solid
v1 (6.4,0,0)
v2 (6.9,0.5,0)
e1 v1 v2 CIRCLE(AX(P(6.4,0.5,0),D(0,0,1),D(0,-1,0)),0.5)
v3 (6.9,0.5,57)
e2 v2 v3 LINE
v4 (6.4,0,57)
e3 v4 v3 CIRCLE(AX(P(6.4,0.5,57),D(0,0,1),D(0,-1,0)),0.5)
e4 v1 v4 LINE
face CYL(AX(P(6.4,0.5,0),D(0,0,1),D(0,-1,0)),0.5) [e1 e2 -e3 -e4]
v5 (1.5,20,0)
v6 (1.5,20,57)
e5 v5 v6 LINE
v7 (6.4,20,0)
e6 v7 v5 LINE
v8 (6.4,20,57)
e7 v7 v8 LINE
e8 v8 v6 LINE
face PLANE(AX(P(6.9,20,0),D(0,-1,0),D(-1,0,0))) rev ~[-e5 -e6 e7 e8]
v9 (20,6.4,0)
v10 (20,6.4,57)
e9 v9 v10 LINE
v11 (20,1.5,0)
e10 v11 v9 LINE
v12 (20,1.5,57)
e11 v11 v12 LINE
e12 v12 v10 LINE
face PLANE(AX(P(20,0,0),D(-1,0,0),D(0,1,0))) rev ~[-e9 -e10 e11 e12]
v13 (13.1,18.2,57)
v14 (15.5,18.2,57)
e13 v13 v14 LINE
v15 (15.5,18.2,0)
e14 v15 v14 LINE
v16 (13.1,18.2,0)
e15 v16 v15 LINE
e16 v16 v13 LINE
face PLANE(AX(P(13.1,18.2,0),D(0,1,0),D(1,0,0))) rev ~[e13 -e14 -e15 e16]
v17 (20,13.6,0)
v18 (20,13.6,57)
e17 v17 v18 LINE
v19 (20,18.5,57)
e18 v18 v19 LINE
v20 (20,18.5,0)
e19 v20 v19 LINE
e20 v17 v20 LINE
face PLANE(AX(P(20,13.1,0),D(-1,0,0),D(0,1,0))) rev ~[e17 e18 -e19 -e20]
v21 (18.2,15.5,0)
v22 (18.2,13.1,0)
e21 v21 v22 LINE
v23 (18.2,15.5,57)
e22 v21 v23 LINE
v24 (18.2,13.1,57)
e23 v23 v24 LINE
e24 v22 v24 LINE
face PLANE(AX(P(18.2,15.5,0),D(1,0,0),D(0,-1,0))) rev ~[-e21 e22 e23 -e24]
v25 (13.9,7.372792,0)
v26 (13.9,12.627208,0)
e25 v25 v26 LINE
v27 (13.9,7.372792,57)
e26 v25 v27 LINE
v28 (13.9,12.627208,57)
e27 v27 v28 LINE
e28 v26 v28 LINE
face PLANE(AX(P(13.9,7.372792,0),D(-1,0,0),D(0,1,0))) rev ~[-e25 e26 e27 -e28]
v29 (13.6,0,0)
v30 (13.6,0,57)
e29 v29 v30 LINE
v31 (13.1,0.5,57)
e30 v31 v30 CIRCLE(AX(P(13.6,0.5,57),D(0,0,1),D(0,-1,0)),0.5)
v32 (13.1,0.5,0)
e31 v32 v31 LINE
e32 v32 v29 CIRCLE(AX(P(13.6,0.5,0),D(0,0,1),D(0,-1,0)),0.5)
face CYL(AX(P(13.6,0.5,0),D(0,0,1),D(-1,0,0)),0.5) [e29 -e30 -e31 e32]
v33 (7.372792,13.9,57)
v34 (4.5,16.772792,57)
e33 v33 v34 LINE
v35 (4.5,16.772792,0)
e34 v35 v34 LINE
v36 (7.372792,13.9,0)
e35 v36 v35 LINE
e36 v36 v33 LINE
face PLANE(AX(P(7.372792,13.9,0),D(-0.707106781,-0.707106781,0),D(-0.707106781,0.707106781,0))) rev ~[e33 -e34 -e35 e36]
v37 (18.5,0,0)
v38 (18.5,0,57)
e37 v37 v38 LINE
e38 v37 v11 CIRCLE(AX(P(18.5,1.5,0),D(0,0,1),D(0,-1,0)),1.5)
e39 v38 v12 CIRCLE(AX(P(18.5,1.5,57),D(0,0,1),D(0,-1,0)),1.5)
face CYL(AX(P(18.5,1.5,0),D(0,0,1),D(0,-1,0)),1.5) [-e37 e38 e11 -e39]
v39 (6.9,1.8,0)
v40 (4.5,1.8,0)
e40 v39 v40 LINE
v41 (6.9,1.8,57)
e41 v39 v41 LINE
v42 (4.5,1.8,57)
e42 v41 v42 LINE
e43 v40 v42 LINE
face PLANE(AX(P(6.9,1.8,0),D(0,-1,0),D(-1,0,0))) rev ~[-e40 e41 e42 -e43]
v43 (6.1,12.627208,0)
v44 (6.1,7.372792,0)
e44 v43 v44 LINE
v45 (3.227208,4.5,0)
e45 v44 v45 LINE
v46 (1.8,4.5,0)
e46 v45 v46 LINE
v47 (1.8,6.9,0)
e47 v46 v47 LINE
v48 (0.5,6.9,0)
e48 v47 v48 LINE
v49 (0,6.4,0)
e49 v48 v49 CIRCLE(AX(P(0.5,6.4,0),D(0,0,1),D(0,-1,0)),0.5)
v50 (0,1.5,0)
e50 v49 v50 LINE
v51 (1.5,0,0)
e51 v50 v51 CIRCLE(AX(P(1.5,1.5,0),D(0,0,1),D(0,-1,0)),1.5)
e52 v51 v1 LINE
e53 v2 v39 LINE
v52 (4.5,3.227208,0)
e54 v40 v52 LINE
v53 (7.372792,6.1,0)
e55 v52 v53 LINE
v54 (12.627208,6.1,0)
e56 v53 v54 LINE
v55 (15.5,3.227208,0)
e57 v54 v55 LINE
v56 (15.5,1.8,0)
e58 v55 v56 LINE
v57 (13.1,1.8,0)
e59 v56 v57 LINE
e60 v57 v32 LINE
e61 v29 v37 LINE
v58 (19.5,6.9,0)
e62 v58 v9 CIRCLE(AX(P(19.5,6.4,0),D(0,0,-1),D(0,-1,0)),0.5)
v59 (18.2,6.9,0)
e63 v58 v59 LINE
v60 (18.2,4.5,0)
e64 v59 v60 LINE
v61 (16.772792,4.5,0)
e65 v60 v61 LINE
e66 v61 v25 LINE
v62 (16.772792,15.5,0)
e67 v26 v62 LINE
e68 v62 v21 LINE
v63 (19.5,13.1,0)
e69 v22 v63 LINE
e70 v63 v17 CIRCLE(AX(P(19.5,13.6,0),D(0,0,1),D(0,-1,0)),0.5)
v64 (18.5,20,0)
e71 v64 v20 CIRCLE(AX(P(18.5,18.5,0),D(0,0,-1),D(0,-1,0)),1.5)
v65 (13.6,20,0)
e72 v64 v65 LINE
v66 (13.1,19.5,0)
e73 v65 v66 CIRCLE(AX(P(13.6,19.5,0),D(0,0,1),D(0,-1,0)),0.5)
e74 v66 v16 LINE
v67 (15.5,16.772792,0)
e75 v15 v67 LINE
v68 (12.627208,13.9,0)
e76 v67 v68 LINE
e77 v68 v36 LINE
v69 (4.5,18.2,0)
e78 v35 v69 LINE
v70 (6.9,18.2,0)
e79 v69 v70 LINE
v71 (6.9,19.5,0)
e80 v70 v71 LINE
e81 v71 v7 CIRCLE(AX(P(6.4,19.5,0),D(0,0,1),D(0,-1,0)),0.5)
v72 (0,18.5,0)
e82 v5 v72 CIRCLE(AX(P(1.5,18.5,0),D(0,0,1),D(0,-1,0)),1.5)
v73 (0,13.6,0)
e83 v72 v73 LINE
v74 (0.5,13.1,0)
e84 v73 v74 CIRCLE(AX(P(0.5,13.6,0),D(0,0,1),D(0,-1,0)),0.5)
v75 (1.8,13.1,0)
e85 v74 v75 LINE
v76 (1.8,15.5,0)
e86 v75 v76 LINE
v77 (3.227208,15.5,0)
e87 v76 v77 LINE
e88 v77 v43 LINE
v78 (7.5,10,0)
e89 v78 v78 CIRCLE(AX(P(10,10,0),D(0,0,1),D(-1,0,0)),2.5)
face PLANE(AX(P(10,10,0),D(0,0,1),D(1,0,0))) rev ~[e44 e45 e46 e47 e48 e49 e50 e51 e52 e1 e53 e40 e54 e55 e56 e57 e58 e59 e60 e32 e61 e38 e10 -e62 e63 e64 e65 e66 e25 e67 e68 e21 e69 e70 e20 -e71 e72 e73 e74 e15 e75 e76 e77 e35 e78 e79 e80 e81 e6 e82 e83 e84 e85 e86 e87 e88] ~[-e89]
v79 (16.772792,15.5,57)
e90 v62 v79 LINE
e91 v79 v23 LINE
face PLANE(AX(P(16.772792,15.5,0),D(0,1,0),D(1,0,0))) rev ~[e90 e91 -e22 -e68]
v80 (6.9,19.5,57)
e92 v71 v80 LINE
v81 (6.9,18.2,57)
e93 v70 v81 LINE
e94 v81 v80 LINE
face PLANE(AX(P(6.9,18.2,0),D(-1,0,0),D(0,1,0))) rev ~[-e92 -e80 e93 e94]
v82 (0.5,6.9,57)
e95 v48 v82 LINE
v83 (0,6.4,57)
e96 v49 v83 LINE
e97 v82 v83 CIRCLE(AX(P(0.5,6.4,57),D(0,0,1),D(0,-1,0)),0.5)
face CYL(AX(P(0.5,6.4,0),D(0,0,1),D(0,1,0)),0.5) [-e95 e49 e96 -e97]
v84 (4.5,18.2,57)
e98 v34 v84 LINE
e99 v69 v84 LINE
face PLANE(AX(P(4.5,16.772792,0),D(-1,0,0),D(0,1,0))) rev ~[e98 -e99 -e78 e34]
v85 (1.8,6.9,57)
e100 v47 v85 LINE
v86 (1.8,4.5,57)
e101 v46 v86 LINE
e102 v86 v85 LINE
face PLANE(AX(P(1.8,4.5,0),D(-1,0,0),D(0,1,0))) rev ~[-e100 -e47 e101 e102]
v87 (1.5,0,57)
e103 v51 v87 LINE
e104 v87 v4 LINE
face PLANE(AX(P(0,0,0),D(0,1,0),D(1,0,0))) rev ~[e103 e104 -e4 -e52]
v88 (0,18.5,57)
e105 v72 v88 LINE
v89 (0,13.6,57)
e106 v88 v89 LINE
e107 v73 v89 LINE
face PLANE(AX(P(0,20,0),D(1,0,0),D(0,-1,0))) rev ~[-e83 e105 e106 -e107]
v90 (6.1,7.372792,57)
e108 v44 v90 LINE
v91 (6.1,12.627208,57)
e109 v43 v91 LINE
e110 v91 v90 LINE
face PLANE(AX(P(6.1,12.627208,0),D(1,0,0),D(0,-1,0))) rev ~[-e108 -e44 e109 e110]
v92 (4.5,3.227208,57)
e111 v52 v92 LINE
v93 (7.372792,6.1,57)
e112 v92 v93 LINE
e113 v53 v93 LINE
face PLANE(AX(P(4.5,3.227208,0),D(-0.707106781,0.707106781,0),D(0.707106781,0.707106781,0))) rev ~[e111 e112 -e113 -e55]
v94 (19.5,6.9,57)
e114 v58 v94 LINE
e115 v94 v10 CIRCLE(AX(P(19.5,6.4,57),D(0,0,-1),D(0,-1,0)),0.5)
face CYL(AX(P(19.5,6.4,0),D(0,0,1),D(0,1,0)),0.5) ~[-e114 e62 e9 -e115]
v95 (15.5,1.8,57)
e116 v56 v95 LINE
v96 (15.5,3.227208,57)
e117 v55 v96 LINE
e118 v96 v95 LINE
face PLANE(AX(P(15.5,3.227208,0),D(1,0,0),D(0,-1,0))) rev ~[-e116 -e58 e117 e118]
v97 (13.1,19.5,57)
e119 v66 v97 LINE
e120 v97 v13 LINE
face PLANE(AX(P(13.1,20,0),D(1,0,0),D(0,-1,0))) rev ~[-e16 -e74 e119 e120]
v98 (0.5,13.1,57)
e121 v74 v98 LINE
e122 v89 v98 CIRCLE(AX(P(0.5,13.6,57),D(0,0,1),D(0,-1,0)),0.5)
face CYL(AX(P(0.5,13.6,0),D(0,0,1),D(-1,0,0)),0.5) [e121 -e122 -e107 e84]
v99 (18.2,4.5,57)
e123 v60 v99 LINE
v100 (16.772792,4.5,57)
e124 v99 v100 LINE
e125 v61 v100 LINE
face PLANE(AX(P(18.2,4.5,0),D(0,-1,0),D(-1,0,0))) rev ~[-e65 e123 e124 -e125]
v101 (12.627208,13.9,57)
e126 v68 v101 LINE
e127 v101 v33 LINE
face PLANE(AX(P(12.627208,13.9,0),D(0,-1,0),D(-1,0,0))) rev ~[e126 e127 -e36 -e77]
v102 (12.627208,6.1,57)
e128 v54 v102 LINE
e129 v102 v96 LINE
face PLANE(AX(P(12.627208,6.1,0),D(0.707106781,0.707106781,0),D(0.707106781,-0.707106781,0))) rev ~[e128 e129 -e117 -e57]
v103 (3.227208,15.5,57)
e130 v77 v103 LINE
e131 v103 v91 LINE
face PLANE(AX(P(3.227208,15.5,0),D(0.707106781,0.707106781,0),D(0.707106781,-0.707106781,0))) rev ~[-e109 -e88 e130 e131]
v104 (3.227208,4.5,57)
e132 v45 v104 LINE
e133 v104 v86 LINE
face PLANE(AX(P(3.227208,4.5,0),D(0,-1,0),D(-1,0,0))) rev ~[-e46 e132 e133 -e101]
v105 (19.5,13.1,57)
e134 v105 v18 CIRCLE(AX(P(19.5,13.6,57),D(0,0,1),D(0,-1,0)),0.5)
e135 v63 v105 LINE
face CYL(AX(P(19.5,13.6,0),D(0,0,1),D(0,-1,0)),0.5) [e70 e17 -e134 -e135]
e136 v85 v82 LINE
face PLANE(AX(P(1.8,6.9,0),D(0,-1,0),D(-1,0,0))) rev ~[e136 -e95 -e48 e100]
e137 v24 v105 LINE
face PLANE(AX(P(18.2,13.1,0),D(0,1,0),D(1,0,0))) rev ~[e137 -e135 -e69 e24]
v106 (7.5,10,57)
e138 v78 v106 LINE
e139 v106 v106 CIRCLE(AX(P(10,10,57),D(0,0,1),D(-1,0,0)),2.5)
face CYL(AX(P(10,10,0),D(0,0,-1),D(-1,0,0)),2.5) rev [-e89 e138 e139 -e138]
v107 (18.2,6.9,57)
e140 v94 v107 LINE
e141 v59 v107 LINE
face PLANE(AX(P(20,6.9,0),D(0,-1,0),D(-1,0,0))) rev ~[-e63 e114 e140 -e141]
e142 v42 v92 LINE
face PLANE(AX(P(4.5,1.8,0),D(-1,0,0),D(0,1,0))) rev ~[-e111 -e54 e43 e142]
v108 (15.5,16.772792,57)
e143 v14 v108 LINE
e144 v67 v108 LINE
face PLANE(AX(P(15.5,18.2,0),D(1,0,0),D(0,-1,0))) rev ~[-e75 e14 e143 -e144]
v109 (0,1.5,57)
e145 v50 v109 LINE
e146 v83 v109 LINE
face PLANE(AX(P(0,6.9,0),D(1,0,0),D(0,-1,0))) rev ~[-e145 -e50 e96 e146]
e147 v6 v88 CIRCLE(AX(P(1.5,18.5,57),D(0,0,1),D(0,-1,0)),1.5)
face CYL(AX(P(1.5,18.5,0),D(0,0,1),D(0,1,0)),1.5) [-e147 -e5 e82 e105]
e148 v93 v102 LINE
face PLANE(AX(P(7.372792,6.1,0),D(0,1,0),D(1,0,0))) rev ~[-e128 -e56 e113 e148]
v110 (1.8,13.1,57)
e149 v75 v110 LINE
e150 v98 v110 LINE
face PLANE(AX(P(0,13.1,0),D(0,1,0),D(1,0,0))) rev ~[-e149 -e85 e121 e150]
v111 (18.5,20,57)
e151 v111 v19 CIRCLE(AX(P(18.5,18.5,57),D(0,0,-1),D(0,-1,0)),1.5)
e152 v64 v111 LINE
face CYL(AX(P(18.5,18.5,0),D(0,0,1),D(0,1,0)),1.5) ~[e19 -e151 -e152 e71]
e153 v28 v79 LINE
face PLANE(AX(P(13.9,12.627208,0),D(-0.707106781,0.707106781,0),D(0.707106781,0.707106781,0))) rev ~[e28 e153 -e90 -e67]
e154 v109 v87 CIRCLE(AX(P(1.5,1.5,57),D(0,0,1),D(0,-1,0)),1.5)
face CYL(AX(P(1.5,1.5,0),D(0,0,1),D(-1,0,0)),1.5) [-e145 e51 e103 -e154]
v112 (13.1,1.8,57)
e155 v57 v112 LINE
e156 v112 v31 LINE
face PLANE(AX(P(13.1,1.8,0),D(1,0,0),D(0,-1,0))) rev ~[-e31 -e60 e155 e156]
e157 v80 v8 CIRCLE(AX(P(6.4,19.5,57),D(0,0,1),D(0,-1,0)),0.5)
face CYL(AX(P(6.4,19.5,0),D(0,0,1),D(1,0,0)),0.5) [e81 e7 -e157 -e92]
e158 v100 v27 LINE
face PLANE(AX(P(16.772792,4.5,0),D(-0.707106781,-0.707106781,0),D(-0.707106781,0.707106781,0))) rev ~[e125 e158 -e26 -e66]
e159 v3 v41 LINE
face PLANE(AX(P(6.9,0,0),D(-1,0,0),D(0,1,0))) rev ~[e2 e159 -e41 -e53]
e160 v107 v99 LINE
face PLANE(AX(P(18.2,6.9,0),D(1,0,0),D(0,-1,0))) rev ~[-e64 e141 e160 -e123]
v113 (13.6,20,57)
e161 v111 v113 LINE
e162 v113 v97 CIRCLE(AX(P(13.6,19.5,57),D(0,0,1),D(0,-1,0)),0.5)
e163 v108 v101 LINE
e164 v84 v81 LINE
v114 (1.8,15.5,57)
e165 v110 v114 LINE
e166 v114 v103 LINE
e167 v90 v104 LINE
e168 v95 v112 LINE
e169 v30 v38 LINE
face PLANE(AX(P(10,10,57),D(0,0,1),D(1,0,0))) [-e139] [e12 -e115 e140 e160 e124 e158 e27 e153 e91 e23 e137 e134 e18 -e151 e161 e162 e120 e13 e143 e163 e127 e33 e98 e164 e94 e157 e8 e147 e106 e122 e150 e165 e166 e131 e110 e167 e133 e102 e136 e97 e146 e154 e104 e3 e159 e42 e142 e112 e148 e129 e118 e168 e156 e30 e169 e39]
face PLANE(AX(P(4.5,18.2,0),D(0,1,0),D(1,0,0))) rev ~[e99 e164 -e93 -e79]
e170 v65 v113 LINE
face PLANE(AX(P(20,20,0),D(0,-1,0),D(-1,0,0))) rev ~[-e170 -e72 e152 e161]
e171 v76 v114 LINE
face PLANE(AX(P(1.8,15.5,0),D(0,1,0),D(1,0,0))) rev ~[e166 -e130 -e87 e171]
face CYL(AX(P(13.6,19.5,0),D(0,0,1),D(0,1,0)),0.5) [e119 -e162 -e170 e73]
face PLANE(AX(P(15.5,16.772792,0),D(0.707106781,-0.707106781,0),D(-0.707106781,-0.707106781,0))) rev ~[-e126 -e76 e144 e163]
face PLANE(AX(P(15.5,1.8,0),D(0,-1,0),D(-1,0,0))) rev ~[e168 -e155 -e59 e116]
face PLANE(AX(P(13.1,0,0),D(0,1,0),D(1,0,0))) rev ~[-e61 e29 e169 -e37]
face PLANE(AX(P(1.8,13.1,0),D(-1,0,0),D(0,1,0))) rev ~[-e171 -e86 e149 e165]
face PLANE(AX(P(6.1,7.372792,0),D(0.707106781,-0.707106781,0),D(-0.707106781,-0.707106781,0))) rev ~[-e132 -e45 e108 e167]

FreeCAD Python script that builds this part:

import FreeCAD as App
import Part
import Sketcher
from FreeCAD import Vector
Q = App.Units.Quantity


def edges_at(feature, points):
    """Names of the edges that pass closest to the given points."""
    edges = feature.Shape.Edges
    near = lambda p: min(range(len(edges)), key=lambda i: edges[i].distToShape(Part.Vertex(*p))[0])
    return sorted({f"Edge{near(p) + 1}" for p in points})


def add_polygon(sketch, points):
    """Adds a closed chain of lines whose ends are joined by coincident constraints."""
    first, n = sketch.GeometryCount, len(points)
    for a, b in zip(points, points[1:] + points[:1]):
        sketch.addGeometry(Part.LineSegment(App.Vector(*a, 0), App.Vector(*b, 0)), False)
    for i in range(n):
        sketch.addConstraint(Sketcher.Constraint("Coincident", first + i, 2, first + (i + 1) % n, 1))

doc = App.newDocument("Part")
body = doc.addObject("PartDesign::Body", "Body")

# Sketch on XY plane
sketch1 = body.newObject("Sketcher::SketchObject", "Sketch")
sketch1.AttachmentSupport = (doc.getObject("XY_Plane"), [""])
sketch1.MapMode = "FlatFace"
add_polygon(sketch1, [(0, 6.9), (0, 0), (6.9, 0), (6.9, 1.8), (4.5, 1.8), (4.5, 3.227208), (7.372792, 6.1), (12.627208, 6.1), (15.5, 3.227208), (15.5, 1.8), (13.1, 1.8), (13.1, 0), (20, 0), (20, 6.9), (18.2, 6.9), (18.2, 4.5), (16.772792, 4.5), (13.9, 7.372792), (13.9, 12.627208), (16.772792, 15.5), (18.2, 15.5), (18.2, 13.1), (20, 13.1), (20, 20), (13.1, 20), (13.1, 18.2), (15.5, 18.2), (15.5, 16.772792), (12.627208, 13.9), (7.372792, 13.9), (4.5, 16.772792), (4.5, 18.2), (6.9, 18.2), (6.9, 20), (0, 20), (0, 13.1), (1.8, 13.1), (1.8, 15.5), (3.227208, 15.5), (6.1, 12.627208), (6.1, 7.372792), (3.227208, 4.5), (1.8, 4.5), (1.8, 6.9)])  # lines 0-43
sketch1.addGeometry(Part.Circle(Vector(10, 10, 0), Vector(0, 0, 1), 2.5), False)  # 44
sketch1.addConstraint([
    Sketcher.Constraint("Vertical", 0),
    Sketcher.Constraint("Horizontal", 1),
    Sketcher.Constraint("Vertical", 2),
    Sketcher.Constraint("Horizontal", 3),
    Sketcher.Constraint("Vertical", 4),
    Sketcher.Constraint("Horizontal", 6),
    Sketcher.Constraint("Vertical", 8),
    Sketcher.Constraint("Horizontal", 9),
    Sketcher.Constraint("Vertical", 10),
    Sketcher.Constraint("Horizontal", 11),
    Sketcher.Constraint("Vertical", 12),
    Sketcher.Constraint("Horizontal", 13),
    Sketcher.Constraint("Vertical", 14),
    Sketcher.Constraint("Horizontal", 15),
    Sketcher.Constraint("Vertical", 17),
    Sketcher.Constraint("Horizontal", 19),
    Sketcher.Constraint("Vertical", 20),
    Sketcher.Constraint("Horizontal", 21),
    Sketcher.Constraint("Vertical", 22),
    Sketcher.Constraint("Horizontal", 23),
    Sketcher.Constraint("Vertical", 24),
    Sketcher.Constraint("Horizontal", 25),
    Sketcher.Constraint("Vertical", 26),
    Sketcher.Constraint("Horizontal", 28),
    Sketcher.Constraint("Vertical", 30),
    Sketcher.Constraint("Horizontal", 31),
    Sketcher.Constraint("Vertical", 32),
    Sketcher.Constraint("Horizontal", 33),
    Sketcher.Constraint("Vertical", 34),
    Sketcher.Constraint("Horizontal", 35),
    Sketcher.Constraint("Vertical", 36),
    Sketcher.Constraint("Horizontal", 37),
    Sketcher.Constraint("Vertical", 39),
    Sketcher.Constraint("Horizontal", 41),
    Sketcher.Constraint("Vertical", 42),
    Sketcher.Constraint("Horizontal", 43),
    Sketcher.Constraint("Coincident", 0, 2, -1, 1),
    Sketcher.Constraint("PointOnObject", 10, 2, -1),
    Sketcher.Constraint("PointOnObject", 33, 2, -2),
    Sketcher.Constraint("Perpendicular", 5, 7),
    Sketcher.Constraint("Parallel", 7, 16),
    Sketcher.Constraint("Perpendicular", 16, 18),
    Sketcher.Constraint("Parallel", 18, 27),
    Sketcher.Constraint("Perpendicular", 27, 29),
    Sketcher.Constraint("Parallel", 29, 38),
    Sketcher.Constraint("Perpendicular", 38, 40),
    Sketcher.Constraint("Horizontal", 4, 2, 7, 2),
    Sketcher.Constraint("Horizontal", 3, 2, 8, 2),
    Sketcher.Constraint("Horizontal", 26, 2, 29, 2),
    Sketcher.Constraint("Horizontal", 25, 2, 30, 2),
    Sketcher.Constraint("Horizontal", 23, 2, 32, 2),
    Sketcher.Constraint("Horizontal", 21, 2, 34, 2),
    Sketcher.Constraint("Horizontal", 19, 2, 36, 2),
    Sketcher.Constraint("Horizontal", 17, 2, 38, 2),
    Sketcher.Constraint("Horizontal", 16, 2, 39, 2),
    Sketcher.Constraint("Horizontal", 15, 2, 40, 2),
    Sketcher.Constraint("Horizontal", 13, 2, 42, 2),
    Sketcher.Constraint("Vertical", 15, 2, 18, 2),
    Sketcher.Constraint("Vertical", 14, 2, 19, 2),
    Sketcher.Constraint("Vertical", 12, 2, 21, 2),
    Sketcher.Constraint("Vertical", 10, 2, 23, 2),
    Sketcher.Constraint("Vertical", 8, 2, 25, 2),
    Sketcher.Constraint("Vertical", 6, 2, 27, 2),
    Sketcher.Constraint("Vertical", 5, 2, 28, 2),
    Sketcher.Constraint("Vertical", 4, 2, 29, 2),
    Sketcher.Constraint("Vertical", 2, 2, 31, 2),
    Sketcher.Constraint("Vertical", 36, 2, 41, 2),
    Sketcher.Constraint("Equal", 3, 9),
    Sketcher.Constraint("Equal", 1, 11),
    Sketcher.Constraint("Equal", 21, 35),
    Sketcher.Constraint("Equal", 19, 37),
    Sketcher.Constraint("Equal", 33, 0),
    Sketcher.Constraint("Equal", 43, 2),
    Sketcher.Constraint("Equal", 41, 4),
    Sketcher.Constraint("Equal", 31, 14),
    Sketcher.Constraint("Equal", 28, 17),
    Sketcher.Constraint("Equal", 14, 20),
    Sketcher.Constraint("Equal", 12, 22),
    Sketcher.Constraint("Equal", 10, 24),
    Sketcher.Constraint("Equal", 8, 26),
    Sketcher.Constraint("Equal", 7, 16),
    Sketcher.Constraint("Diameter", 44, Q("5 mm")),
    Sketcher.Constraint("DistanceX", 1, 1, 1, 2, Q("6.9 mm")),
    Sketcher.Constraint("DistanceX", 3, 2, 3, 1, Q("2.4 mm")),
    Sketcher.Constraint("DistanceX", 13, 2, 13, 1, Q("1.8 mm")),
    Sketcher.Constraint("DistanceX", -1, 1, 44, 3, Q("10 mm")),
    Sketcher.Constraint("DistanceY", -1, 1, 44, 3, Q("10 mm")),
    Sketcher.Constraint("DistanceX", -1, 1, 11, 2, Q("20 mm")),
    Sketcher.Constraint("DistanceY", -1, 1, 5, 2, Q("6.1 mm")),
    Sketcher.Constraint("Distance", 5, Q("4.062742 mm")),
])
pad1 = body.newObject("PartDesign::Pad", "Pad")
pad1.Profile = sketch1
pad1.Length = 57
doc.recompute()

fillet = body.newObject("PartDesign::Fillet", "Fillet")
fillet.Base = (pad1, edges_at(pad1, [(20, 20, 28.5)]))
fillet.Radius = 1.5
doc.recompute()

fillet2 = body.newObject("PartDesign::Fillet", "Fillet001")
fillet2.Base = (fillet, edges_at(fillet, [(0, 20, 28.5)]))
fillet2.Radius = 1.5
doc.recompute()

fillet3 = body.newObject("PartDesign::Fillet", "Fillet002")
fillet3.Base = (fillet2, edges_at(fillet2, [(0, 0, 28.5)]))
fillet3.Radius = 1.5
doc.recompute()

fillet4 = body.newObject("PartDesign::Fillet", "Fillet003")
fillet4.Base = (fillet3, edges_at(fillet3, [(20, 0, 28.5)]))
fillet4.Radius = 1.5
doc.recompute()

fillet5 = body.newObject("PartDesign::Fillet", "Fillet004")
fillet5.Base = (fillet4, edges_at(fillet4, [(13.1, 20, 28.5)]))
fillet5.Radius = 0.5
doc.recompute()

fillet6 = body.newObject("PartDesign::Fillet", "Fillet005")
fillet6.Base = (fillet5, edges_at(fillet5, [(6.9, 20, 28.5)]))
fillet6.Radius = 0.5
doc.recompute()

fillet7 = body.newObject("PartDesign::Fillet", "Fillet006")
fillet7.Base = (fillet6, edges_at(fillet6, [(0, 13.1, 28.5)]))
fillet7.Radius = 0.5
doc.recompute()

fillet8 = body.newObject("PartDesign::Fillet", "Fillet007")
fillet8.Base = (fillet7, edges_at(fillet7, [(0, 6.9, 28.5)]))
fillet8.Radius = 0.5
doc.recompute()

fillet9 = body.newObject("PartDesign::Fillet", "Fillet008")
fillet9.Base = (fillet8, edges_at(fillet8, [(6.9, 0, 28.5)]))
fillet9.Radius = 0.5
doc.recompute()

fillet10 = body.newObject("PartDesign::Fillet", "Fillet009")
fillet10.Base = (fillet9, edges_at(fillet9, [(13.1, 0, 28.5)]))
fillet10.Radius = 0.5
doc.recompute()

fillet11 = body.newObject("PartDesign::Fillet", "Fillet010")
fillet11.Base = (fillet10, edges_at(fillet10, [(20, 13.1, 28.5)]))
fillet11.Radius = 0.5
doc.recompute()

fillet12 = body.newObject("PartDesign::Fillet", "Fillet011")
fillet12.Base = (fillet11, edges_at(fillet11, [(20, 6.9, 28.5)]))
fillet12.Radius = 0.5

doc.recompute()
